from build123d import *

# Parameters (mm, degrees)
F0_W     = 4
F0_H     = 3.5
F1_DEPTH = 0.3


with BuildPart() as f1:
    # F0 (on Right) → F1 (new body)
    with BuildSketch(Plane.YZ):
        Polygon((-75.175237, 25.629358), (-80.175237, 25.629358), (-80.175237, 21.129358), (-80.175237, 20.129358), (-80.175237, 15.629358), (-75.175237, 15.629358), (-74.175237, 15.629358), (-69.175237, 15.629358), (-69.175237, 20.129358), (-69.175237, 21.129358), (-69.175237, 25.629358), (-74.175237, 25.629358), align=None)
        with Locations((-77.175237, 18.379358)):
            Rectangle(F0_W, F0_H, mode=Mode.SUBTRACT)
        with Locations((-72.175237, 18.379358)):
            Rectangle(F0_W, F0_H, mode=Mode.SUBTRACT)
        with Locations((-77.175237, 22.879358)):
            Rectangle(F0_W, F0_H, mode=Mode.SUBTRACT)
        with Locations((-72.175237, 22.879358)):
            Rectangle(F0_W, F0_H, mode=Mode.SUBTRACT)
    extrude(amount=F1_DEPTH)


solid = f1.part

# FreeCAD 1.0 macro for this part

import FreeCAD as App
import Part
import Sketcher

V = App.Vector


def add_polygon(sketch, points):
    """Adds a closed chain of lines whose ends are joined by coincident constraints."""
    first, n = sketch.GeometryCount, len(points)
    for a, b in zip(points, points[1:] + points[:1]):
        sketch.addGeometry(Part.LineSegment(App.Vector(*a, 0), App.Vector(*b, 0)), False)
    for i in range(n):
        sketch.addConstraint(Sketcher.Constraint("Coincident", first + i, 2, first + (i + 1) % n, 1))

doc = App.newDocument("Part")
body = doc.addObject("PartDesign::Body", "Body")

# Sketch on YZ plane
sketch1 = body.newObject("Sketcher::SketchObject", "Sketch")
sketch1.AttachmentSupport = (doc.getObject("YZ_Plane"), [""])
sketch1.MapMode = "FlatFace"
add_polygon(sketch1, [(-80.175237, 25.629358), (-80.175237, 15.629358), (-69.175237, 15.629358), (-69.175237, 25.629358)])  # lines 0-3
add_polygon(sketch1, [(-75.175237, 16.629358), (-79.175237, 16.629358), (-79.175237, 20.129358), (-75.175237, 20.129358)])  # lines 4-7
add_polygon(sketch1, [(-70.175237, 16.629358), (-74.175237, 16.629358), (-74.175237, 20.129358), (-70.175237, 20.129358)])  # lines 8-11
add_polygon(sketch1, [(-75.175237, 21.129358), (-79.175237, 21.129358), (-79.175237, 24.629358), (-75.175237, 24.629358)])  # lines 12-15
add_polygon(sketch1, [(-70.175237, 21.129358), (-74.175237, 21.129358), (-74.175237, 24.629358), (-70.175237, 24.629358)])  # lines 16-19
sketch1.addConstraint(Sketcher.Constraint("Vertical", 0))
sketch1.addConstraint(Sketcher.Constraint("Horizontal", 1))
sketch1.addConstraint(Sketcher.Constraint("Vertical", 2))
sketch1.addConstraint(Sketcher.Constraint("Horizontal", 3))
sketch1.addConstraint(Sketcher.Constraint("Horizontal", 4))
sketch1.addConstraint(Sketcher.Constraint("Vertical", 5))
sketch1.addConstraint(Sketcher.Constraint("Horizontal", 6))
sketch1.addConstraint(Sketcher.Constraint("Vertical", 7))
sketch1.addConstraint(Sketcher.Constraint("Horizontal", 8))
sketch1.addConstraint(Sketcher.Constraint("Vertical", 9))
sketch1.addConstraint(Sketcher.Constraint("Horizontal", 10))
sketch1.addConstraint(Sketcher.Constraint("Vertical", 11))
sketch1.addConstraint(Sketcher.Constraint("Horizontal", 12))
sketch1.addConstraint(Sketcher.Constraint("Vertical", 13))
sketch1.addConstraint(Sketcher.Constraint("Horizontal", 14))
sketch1.addConstraint(Sketcher.Constraint("Vertical", 15))
sketch1.addConstraint(Sketcher.Constraint("Horizontal", 16))
sketch1.addConstraint(Sketcher.Constraint("Vertical", 17))
sketch1.addConstraint(Sketcher.Constraint("Horizontal", 18))
sketch1.addConstraint(Sketcher.Constraint("Vertical", 19))
sketch1.addConstraint(Sketcher.Constraint("Horizontal", 7, 2, 8, 2))
sketch1.addConstraint(Sketcher.Constraint("Horizontal", 6, 2, 9, 2))
sketch1.addConstraint(Sketcher.Constraint("Horizontal", 15, 2, 16, 2))
sketch1.addConstraint(Sketcher.Constraint("Horizontal", 14, 2, 17, 2))
sketch1.addConstraint(Sketcher.Constraint("Vertical", 5, 2, 12, 2))
sketch1.addConstraint(Sketcher.Constraint("Vertical", 7, 2, 14, 2))
sketch1.addConstraint(Sketcher.Constraint("Vertical", 9, 2, 16, 2))
sketch1.addConstraint(Sketcher.Constraint("Vertical", 11, 2, 18, 2))
sketch1.addConstraint(Sketcher.Constraint("Equal", 6, 8))
sketch1.addConstraint(Sketcher.Constraint("Equal", 11, 13))
sketch1.addConstraint(Sketcher.Constraint("DistanceX", 1, 1, 1, 2, 11.0))
sketch1.addConstraint(Sketcher.Constraint("DistanceX", 4, 2, 4, 1, 4.0))
sketch1.addConstraint(Sketcher.Constraint("DistanceY", 0, 2, 0, 1, 10.0))
sketch1.addConstraint(Sketcher.Constraint("DistanceY", 5, 1, 5, 2, 3.5))
sketch1.addConstraint(Sketcher.Constraint("DistanceX", 0, 2, 4, 2, 1.0))
sketch1.addConstraint(Sketcher.Constraint("DistanceY", 0, 2, 4, 2, 1.0))
sketch1.addConstraint(Sketcher.Constraint("DistanceX", 7, 2, 8, 2, 1.0))
sketch1.addConstraint(Sketcher.Constraint("DistanceY", 5, 2, 12, 2, 1.0))
sketch1.addConstraint(Sketcher.Constraint("DistanceY", -1, 1, 2, 2, 25.629358))
sketch1.addConstraint(Sketcher.Constraint("DistanceX", 0, 2, -1, 1, 80.175237))
pad1 = body.newObject("PartDesign::Pad", "Pad")
pad1.Profile = sketch1
pad1.Length = 0.3

doc.recompute()
